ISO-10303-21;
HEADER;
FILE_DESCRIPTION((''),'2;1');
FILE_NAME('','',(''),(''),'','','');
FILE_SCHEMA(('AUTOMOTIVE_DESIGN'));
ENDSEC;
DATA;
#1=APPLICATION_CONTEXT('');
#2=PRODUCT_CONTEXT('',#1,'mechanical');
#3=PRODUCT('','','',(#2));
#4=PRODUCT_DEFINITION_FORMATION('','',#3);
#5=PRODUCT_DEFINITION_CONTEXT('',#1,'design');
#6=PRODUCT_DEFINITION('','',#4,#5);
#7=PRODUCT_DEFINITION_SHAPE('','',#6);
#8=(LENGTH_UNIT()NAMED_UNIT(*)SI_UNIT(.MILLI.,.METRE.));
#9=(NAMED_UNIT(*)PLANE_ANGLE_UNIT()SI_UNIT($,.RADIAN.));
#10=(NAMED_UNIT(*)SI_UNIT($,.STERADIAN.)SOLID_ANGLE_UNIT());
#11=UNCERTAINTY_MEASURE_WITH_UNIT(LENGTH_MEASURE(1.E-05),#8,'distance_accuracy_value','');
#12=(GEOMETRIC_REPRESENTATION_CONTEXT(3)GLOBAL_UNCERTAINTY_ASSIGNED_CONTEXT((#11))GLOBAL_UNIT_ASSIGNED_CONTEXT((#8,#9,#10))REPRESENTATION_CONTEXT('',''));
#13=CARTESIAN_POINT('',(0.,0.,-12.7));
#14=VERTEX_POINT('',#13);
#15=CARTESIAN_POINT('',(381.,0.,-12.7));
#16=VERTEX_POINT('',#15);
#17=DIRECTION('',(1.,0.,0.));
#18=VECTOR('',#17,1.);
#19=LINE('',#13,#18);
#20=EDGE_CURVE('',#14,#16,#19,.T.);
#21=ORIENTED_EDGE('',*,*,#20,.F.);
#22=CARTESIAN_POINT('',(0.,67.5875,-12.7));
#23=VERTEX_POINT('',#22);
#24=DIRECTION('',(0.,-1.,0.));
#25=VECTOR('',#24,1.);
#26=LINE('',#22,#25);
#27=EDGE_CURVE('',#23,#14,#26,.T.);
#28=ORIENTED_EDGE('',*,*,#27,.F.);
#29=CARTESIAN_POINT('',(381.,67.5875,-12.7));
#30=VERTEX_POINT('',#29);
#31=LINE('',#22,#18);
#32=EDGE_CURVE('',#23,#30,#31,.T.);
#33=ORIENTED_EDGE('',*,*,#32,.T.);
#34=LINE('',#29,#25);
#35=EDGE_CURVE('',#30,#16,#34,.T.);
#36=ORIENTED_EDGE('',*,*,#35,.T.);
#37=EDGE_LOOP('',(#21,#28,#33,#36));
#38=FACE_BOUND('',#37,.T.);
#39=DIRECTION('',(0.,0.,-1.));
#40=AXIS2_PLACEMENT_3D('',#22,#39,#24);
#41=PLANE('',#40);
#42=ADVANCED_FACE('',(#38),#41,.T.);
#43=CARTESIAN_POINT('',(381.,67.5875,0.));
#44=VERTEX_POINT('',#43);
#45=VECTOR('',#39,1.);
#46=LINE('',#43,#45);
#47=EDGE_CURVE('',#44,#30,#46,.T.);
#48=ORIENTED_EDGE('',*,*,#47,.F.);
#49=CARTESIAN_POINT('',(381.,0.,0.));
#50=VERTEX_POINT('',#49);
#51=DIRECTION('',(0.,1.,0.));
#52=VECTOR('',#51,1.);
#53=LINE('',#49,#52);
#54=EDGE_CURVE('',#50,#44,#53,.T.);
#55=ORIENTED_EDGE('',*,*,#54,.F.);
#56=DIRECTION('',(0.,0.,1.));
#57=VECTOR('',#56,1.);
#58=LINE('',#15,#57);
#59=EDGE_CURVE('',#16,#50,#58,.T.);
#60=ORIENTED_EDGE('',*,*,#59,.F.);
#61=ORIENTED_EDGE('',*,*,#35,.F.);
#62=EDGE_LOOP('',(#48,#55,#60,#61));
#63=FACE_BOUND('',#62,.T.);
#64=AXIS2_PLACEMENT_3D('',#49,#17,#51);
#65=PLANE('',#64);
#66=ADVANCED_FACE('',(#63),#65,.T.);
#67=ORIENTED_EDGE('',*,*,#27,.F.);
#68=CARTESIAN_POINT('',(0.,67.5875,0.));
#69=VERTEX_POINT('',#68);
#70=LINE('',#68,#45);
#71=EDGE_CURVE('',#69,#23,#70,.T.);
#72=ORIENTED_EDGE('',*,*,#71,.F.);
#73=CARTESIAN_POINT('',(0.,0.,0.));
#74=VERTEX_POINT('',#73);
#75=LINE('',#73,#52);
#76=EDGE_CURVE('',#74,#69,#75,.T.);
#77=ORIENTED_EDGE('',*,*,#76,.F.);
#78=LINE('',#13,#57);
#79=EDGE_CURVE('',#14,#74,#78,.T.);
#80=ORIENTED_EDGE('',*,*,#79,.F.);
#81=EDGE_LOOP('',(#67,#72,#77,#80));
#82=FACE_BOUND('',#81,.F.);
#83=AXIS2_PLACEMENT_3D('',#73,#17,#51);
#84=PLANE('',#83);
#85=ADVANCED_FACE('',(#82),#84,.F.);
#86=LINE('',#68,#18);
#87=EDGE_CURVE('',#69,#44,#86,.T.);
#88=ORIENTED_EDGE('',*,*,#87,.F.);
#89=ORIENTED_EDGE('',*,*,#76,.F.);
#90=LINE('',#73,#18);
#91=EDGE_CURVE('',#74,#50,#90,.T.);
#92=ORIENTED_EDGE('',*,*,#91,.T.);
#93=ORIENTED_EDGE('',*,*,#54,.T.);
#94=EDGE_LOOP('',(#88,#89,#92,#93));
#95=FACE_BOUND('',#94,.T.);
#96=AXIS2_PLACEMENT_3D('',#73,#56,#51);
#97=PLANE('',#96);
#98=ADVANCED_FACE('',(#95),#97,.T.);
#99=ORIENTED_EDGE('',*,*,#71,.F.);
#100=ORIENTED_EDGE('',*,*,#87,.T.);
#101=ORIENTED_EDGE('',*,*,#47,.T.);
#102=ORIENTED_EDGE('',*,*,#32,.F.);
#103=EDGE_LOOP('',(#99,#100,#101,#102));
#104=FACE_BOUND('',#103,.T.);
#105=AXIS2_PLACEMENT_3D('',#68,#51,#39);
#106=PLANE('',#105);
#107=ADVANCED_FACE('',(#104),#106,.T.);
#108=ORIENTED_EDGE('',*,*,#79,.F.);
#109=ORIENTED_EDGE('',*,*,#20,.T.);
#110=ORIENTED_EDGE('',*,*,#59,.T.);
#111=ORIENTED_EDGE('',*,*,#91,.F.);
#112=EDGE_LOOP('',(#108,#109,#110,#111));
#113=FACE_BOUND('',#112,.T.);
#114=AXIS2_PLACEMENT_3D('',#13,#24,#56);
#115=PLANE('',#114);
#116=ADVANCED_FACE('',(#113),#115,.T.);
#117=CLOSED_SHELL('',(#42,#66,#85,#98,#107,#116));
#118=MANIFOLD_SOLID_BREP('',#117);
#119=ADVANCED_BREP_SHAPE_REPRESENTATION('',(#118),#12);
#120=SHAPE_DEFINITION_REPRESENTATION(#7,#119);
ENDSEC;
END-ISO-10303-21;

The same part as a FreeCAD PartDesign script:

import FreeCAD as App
import Part
import Sketcher
Q = App.Units.Quantity

doc = App.newDocument("Part")
body = doc.addObject("PartDesign::Body", "Body")

# Sketch on YZ plane
sketch1 = doc.addObject("Sketcher::SketchObject", "Sketch")
body.addObject(sketch1)
sketch1.AttachmentSupport = (doc.YZ_Plane, [""])
sketch1.MapMode = "FlatFace"
sketch1.addGeometry(Part.LineSegment(App.Vector(68, 0, 0), App.Vector(0, 0, 0)), False)
sketch1.addGeometry(Part.LineSegment(App.Vector(0, 0, 0), App.Vector(0, -13, 0)), False)
sketch1.addGeometry(Part.LineSegment(App.Vector(0, -13, 0), App.Vector(68, -13, 0)), False)
sketch1.addGeometry(Part.LineSegment(App.Vector(68, -13, 0), App.Vector(68, 0, 0)), False)
sketch1.addConstraint(Sketcher.Constraint("Coincident", 0, 2, 1, 1))
sketch1.addConstraint(Sketcher.Constraint("Coincident", 1, 2, 2, 1))
sketch1.addConstraint(Sketcher.Constraint("Coincident", 2, 2, 3, 1))
sketch1.addConstraint(Sketcher.Constraint("Coincident", 3, 2, 0, 1))
sketch1.addConstraint(Sketcher.Constraint("Horizontal", 0))
sketch1.addConstraint(Sketcher.Constraint("Vertical", 1))
sketch1.addConstraint(Sketcher.Constraint("Horizontal", 2))
sketch1.addConstraint(Sketcher.Constraint("Vertical", 3))
sketch1.addConstraint(Sketcher.Constraint("Coincident", 0, 2, -1, 1))
sketch1.addConstraint(Sketcher.Constraint("DistanceY", 1, 2, 1, 1, Q("0.5 in")))
sketch1.addConstraint(Sketcher.Constraint("DistanceX", 0, 2, 0, 1, Q("67.5875 mm")))
pad1 = doc.addObject("PartDesign::Pad", "Pad")
body.addObject(pad1)
pad1.Profile = sketch1
pad1.Length = Q("15 in")

doc.recompute()
